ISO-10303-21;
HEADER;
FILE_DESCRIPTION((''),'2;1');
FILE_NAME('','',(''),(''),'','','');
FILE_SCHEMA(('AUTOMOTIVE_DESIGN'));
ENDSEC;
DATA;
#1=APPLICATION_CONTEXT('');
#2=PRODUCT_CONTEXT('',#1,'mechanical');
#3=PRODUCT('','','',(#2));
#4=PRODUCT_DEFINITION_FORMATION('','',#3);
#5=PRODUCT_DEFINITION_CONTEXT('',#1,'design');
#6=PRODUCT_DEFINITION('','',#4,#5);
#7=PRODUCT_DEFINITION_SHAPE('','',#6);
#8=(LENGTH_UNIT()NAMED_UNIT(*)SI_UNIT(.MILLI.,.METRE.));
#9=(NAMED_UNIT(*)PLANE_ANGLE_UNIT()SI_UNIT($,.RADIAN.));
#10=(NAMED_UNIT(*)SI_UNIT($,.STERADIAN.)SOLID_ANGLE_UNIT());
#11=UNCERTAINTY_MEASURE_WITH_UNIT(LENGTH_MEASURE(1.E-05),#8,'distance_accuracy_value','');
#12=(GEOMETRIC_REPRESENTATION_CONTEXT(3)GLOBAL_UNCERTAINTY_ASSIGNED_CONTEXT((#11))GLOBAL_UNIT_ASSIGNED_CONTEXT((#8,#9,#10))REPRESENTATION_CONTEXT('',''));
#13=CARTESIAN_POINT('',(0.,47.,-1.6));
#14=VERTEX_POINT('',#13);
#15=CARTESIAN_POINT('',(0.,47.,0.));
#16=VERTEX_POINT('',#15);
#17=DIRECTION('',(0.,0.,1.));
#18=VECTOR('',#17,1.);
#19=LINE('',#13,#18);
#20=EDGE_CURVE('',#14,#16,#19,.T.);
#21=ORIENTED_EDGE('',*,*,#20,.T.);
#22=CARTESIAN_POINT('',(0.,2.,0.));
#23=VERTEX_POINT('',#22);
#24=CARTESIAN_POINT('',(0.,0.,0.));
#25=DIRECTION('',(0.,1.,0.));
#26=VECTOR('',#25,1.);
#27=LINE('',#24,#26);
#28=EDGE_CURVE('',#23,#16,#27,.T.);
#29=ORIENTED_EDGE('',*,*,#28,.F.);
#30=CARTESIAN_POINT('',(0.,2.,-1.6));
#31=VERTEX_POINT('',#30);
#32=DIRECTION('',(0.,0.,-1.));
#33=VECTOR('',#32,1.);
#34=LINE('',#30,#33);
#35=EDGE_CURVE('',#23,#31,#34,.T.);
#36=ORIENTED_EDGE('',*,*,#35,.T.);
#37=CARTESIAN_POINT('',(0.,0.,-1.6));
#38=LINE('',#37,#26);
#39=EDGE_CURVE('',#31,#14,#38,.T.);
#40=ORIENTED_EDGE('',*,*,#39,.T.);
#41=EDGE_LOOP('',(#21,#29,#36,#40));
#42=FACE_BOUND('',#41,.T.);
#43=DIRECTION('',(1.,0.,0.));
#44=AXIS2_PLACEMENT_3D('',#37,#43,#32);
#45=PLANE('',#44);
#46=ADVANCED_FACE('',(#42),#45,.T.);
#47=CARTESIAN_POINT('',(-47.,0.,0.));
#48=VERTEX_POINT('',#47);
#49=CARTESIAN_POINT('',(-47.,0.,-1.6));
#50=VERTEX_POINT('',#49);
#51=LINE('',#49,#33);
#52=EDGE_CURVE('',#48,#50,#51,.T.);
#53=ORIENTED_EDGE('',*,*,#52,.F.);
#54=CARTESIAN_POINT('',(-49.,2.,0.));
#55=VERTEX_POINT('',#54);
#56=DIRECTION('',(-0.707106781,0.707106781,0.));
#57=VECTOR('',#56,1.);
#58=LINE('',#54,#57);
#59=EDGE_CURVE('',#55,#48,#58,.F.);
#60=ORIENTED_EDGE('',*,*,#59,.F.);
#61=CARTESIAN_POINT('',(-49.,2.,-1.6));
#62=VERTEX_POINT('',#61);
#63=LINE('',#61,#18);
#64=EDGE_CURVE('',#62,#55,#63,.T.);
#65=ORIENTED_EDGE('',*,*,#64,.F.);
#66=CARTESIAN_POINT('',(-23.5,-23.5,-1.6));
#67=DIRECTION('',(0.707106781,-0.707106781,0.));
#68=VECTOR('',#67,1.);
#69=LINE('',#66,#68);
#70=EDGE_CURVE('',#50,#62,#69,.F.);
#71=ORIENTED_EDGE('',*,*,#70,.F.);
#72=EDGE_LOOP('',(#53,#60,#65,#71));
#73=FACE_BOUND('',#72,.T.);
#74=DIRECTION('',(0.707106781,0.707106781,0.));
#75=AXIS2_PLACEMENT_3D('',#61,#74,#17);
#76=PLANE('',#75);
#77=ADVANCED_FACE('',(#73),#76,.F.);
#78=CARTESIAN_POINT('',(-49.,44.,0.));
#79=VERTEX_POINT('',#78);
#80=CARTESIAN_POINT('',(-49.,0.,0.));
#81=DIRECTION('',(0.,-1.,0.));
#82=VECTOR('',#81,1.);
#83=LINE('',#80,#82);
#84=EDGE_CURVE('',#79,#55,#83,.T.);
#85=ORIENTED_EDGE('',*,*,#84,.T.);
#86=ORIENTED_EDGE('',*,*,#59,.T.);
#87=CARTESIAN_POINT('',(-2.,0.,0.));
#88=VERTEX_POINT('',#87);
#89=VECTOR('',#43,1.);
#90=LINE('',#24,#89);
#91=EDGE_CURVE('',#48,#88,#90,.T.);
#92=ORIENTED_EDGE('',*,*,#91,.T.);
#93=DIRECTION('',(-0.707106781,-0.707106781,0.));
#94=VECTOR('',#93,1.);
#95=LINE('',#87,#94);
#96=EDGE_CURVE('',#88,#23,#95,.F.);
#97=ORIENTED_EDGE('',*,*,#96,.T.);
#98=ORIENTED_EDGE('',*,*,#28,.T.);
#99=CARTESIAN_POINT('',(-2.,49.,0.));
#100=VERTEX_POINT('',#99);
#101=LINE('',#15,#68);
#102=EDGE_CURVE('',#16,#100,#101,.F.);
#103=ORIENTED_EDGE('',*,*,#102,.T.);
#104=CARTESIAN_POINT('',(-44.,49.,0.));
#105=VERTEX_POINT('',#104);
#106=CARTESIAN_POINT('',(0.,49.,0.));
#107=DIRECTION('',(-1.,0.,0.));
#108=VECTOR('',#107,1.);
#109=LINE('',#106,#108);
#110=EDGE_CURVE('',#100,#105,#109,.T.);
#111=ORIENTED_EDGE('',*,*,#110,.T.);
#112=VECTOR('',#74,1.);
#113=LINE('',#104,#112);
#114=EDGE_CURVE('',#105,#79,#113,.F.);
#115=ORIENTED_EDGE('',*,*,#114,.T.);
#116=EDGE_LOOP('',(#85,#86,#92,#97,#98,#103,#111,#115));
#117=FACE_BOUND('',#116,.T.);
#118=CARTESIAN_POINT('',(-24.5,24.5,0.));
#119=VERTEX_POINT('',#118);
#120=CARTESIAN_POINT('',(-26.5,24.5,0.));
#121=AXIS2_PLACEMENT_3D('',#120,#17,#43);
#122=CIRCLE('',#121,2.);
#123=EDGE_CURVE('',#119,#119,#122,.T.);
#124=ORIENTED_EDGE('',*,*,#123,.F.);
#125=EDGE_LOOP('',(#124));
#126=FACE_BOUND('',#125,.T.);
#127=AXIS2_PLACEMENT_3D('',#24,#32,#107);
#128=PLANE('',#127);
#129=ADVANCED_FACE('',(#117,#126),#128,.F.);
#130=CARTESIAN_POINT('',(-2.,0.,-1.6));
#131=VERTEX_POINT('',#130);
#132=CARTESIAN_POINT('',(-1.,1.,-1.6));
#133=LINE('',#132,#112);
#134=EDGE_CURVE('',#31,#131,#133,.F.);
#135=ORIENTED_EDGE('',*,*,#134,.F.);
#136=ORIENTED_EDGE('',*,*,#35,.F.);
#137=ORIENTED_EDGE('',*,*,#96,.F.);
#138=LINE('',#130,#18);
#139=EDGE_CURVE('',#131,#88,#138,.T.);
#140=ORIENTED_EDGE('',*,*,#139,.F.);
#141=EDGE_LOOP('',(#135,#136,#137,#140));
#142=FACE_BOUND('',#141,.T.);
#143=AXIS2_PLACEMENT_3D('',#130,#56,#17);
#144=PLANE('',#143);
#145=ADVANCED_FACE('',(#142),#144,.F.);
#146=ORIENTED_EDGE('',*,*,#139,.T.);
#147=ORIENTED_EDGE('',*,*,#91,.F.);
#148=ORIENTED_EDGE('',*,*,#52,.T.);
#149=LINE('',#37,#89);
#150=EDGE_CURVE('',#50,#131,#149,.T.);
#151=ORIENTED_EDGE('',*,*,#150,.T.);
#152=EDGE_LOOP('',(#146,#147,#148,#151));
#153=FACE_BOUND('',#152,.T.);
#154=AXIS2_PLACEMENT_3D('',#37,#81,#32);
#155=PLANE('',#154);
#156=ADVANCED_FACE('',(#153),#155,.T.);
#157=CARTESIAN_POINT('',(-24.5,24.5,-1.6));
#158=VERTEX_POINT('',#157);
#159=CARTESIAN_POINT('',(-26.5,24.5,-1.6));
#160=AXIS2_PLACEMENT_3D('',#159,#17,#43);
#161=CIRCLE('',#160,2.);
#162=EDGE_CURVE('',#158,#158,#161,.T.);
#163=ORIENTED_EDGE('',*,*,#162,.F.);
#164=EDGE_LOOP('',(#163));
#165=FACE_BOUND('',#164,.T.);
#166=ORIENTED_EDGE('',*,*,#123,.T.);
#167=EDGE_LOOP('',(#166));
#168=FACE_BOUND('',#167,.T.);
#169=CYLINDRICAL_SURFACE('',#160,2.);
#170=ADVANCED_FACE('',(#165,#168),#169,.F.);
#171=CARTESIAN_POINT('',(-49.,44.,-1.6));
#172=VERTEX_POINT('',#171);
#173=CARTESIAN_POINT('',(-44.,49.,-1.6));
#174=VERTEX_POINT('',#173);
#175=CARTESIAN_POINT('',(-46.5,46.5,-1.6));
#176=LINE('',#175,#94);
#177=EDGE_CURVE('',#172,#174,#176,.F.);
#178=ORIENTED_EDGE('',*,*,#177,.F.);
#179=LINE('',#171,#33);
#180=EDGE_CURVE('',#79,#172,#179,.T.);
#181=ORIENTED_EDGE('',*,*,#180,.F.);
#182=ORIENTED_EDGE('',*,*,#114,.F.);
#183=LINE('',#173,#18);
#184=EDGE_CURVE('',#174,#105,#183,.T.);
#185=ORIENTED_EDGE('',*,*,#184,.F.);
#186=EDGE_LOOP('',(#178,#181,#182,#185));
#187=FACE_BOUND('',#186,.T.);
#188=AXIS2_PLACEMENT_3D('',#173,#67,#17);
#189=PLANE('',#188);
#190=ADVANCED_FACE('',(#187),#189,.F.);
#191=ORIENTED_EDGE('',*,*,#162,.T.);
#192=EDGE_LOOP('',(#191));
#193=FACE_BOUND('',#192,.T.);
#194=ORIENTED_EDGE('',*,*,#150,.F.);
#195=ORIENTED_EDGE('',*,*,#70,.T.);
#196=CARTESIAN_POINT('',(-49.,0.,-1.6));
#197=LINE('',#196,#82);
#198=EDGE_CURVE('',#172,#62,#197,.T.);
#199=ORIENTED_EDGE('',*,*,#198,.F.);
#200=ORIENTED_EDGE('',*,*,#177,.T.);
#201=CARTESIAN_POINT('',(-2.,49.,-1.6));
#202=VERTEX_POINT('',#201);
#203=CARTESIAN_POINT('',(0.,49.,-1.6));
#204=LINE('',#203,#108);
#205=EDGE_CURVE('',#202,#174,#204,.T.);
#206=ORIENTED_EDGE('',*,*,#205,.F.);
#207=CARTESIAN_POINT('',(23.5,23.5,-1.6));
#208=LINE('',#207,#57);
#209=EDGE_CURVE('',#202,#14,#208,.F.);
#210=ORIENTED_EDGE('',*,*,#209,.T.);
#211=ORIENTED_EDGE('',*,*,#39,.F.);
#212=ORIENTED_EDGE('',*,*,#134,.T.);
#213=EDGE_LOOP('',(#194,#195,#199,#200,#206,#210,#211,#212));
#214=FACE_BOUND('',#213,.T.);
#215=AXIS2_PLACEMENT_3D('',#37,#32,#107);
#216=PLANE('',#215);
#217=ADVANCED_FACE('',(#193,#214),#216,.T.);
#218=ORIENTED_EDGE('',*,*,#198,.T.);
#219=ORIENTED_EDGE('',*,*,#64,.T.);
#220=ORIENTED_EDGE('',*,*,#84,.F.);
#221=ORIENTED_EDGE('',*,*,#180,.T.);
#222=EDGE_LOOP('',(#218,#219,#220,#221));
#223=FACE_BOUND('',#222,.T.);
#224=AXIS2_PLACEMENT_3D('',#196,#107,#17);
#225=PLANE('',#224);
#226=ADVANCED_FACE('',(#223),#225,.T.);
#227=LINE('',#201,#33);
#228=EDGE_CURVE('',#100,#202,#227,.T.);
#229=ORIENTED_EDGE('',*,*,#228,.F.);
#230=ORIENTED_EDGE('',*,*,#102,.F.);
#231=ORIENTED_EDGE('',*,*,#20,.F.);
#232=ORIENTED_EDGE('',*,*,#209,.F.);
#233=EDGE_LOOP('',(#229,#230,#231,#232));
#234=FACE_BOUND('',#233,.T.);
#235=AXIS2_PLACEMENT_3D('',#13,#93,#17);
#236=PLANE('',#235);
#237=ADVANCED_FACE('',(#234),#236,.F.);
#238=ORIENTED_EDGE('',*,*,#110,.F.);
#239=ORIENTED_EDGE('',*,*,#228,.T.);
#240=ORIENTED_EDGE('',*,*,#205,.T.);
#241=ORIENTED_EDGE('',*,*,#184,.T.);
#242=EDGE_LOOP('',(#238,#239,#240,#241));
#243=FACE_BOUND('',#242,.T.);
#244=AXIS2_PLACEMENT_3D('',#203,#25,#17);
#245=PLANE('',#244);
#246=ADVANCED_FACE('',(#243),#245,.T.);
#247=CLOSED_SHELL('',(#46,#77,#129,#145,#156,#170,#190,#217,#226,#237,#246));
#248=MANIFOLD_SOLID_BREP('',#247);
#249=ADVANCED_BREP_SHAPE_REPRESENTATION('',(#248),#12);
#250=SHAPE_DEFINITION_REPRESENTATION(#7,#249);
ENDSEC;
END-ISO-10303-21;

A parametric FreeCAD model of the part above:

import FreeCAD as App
import Part
import Sketcher
from FreeCAD import Vector


def edges_at(feature, points):
    """Names of the edges that pass closest to the given points."""
    edges = feature.Shape.Edges
    near = lambda p: min(range(len(edges)), key=lambda i: edges[i].distToShape(Part.Vertex(*p))[0])
    return sorted({f"Edge{near(p) + 1}" for p in points})

doc = App.newDocument("Part")
body = doc.addObject("PartDesign::Body", "Body")

# Sketch on XY plane
sketch1 = body.newObject("Sketcher::SketchObject", "Sketch")
sketch1.AttachmentSupport = (doc.getObject("XY_Plane"), [""])
sketch1.MapMode = "FlatFace"
sketch1.addGeometry([
    Part.LineSegment(Vector(-49, 0, 0), Vector(0, 0, 0)),  # 0
    Part.LineSegment(Vector(0, 0, 0), Vector(0, 49, 0)),  # 1
    Part.LineSegment(Vector(0, 49, 0), Vector(-49, 49, 0)),  # 2
    Part.LineSegment(Vector(-49, 49, 0), Vector(-49, 0, 0)),  # 3
    Part.Circle(Vector(-26.5, 24.5, 0), Vector(0, 0, 1), 2),  # 4
], False)
sketch1.addConstraint([
    Sketcher.Constraint("Coincident", 0, 2, 1, 1),
    Sketcher.Constraint("Coincident", 1, 2, 2, 1),
    Sketcher.Constraint("Coincident", 2, 2, 3, 1),
    Sketcher.Constraint("Coincident", 3, 2, 0, 1),
    Sketcher.Constraint("Horizontal", 0),
    Sketcher.Constraint("Vertical", 1),
    Sketcher.Constraint("Horizontal", 2),
    Sketcher.Constraint("Vertical", 3),
    Sketcher.Constraint("Coincident", 0, 2, -1, 1),
    Sketcher.Constraint("Equal", 2, 1),
    Sketcher.Constraint("Diameter", 4, 4.0),
    Sketcher.Constraint("DistanceX", 0, 1, 0, 2, 49.0),
    Sketcher.Constraint("DistanceX", 4, 3, -1, 1, 26.5),
    Sketcher.Constraint("DistanceY", -1, 1, 4, 3, 24.5),
])
pad1 = body.newObject("PartDesign::Pad", "Pad")
pad1.Profile = sketch1
pad1.Length = 1.6
pad1.Reversed = True
doc.recompute()

chamfer = body.newObject("PartDesign::Chamfer", "Chamfer")
chamfer.Base = (pad1, edges_at(pad1, [(-49, 49, -0.8)]))
chamfer.Size = 5
doc.recompute()

chamfer2 = body.newObject("PartDesign::Chamfer", "Chamfer001")
chamfer2.Base = (chamfer, edges_at(chamfer, [(-49, 0, -0.8), (0, 49, -0.8), (0, 0, -0.8)]))
chamfer2.Size = 2

doc.recompute()
